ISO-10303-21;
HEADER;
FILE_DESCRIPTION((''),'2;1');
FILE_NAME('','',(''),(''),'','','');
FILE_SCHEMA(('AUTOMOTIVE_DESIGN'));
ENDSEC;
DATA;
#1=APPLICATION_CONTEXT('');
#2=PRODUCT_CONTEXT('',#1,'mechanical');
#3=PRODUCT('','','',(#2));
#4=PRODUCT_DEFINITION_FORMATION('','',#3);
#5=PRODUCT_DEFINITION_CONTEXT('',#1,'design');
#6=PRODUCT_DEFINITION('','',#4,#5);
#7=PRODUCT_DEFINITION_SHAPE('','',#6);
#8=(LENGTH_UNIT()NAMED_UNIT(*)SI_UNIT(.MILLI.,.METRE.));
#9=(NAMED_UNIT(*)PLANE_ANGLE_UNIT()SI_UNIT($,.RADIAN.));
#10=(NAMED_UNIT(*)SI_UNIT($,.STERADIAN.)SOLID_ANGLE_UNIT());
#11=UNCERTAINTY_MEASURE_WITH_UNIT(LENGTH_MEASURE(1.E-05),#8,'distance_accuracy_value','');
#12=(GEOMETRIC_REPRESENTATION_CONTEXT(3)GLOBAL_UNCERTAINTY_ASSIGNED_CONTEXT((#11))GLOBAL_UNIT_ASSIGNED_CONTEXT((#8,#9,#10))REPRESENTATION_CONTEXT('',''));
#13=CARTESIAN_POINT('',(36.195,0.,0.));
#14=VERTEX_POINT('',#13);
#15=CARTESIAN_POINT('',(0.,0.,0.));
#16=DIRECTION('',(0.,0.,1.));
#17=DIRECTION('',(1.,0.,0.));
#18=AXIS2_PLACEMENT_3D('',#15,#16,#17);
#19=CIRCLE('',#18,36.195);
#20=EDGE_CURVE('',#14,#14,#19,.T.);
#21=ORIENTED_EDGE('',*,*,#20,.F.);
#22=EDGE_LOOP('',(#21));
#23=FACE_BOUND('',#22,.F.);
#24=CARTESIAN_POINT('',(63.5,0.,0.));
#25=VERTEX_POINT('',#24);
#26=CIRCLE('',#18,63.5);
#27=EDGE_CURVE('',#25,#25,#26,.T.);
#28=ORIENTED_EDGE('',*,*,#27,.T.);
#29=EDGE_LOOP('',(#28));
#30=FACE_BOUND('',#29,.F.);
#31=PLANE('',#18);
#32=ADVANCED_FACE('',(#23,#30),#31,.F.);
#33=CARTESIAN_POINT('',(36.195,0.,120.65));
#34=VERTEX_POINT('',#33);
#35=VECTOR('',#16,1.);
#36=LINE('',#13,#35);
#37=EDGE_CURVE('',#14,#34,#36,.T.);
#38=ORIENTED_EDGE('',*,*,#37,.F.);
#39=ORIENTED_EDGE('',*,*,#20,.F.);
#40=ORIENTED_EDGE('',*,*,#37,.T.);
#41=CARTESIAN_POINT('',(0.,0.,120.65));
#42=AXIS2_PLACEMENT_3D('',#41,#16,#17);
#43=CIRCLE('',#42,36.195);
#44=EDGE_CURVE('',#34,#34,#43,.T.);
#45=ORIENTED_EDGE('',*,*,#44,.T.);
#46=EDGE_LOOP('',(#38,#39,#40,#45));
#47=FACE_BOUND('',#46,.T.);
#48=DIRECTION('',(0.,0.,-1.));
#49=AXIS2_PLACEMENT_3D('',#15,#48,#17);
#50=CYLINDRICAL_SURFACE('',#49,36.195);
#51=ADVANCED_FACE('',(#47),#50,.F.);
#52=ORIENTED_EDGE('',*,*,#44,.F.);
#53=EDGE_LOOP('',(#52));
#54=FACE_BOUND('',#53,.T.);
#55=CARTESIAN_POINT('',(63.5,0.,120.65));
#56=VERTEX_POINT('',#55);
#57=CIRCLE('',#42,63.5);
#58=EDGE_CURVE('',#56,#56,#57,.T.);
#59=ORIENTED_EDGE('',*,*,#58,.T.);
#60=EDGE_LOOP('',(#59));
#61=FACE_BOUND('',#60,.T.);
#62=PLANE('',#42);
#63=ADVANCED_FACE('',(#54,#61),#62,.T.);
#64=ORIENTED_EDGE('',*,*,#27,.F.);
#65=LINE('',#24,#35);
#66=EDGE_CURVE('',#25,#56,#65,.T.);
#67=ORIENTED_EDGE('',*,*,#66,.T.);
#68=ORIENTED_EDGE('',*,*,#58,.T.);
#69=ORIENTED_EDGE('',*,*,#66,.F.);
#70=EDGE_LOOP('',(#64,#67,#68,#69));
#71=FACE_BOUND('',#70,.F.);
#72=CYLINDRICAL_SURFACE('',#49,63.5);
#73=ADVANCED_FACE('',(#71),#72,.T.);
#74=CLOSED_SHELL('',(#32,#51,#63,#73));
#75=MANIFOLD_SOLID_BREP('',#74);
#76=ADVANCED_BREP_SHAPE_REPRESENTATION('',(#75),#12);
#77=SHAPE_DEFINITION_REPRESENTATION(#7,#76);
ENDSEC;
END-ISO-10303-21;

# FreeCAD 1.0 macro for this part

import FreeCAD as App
import Part
import Sketcher
from FreeCAD import Vector
Q = App.Units.Quantity

doc = App.newDocument("Part")
body = doc.addObject("PartDesign::Body", "Body")

sketch1 = body.newObject("Sketcher::SketchObject", "Sketch")
sketch1.AttachmentSupport = (doc.getObject("XY_Plane"), [""])
sketch1.MapMode = "FlatFace"
sketch1.addGeometry([
    Part.Circle(Vector(0, 0, 0), Vector(0, 0, 1), 64),
    Part.Circle(Vector(0, 0, 0), Vector(0, 0, 1), 36),
], False)
sketch1.addConstraint([
    Sketcher.Constraint("Coincident", 0, 3, -1, 1),
    Sketcher.Constraint("Coincident", 1, 3, -1, 1),
    Sketcher.Constraint("Diameter", 0, Q("5 in")),
    Sketcher.Constraint("Diameter", 1, Q("2.85 in")),
])
pad1 = body.newObject("PartDesign::Pad", "Pad")
pad1.Profile = sketch1
pad1.Length = Q("4.75 in")

doc.recompute()
